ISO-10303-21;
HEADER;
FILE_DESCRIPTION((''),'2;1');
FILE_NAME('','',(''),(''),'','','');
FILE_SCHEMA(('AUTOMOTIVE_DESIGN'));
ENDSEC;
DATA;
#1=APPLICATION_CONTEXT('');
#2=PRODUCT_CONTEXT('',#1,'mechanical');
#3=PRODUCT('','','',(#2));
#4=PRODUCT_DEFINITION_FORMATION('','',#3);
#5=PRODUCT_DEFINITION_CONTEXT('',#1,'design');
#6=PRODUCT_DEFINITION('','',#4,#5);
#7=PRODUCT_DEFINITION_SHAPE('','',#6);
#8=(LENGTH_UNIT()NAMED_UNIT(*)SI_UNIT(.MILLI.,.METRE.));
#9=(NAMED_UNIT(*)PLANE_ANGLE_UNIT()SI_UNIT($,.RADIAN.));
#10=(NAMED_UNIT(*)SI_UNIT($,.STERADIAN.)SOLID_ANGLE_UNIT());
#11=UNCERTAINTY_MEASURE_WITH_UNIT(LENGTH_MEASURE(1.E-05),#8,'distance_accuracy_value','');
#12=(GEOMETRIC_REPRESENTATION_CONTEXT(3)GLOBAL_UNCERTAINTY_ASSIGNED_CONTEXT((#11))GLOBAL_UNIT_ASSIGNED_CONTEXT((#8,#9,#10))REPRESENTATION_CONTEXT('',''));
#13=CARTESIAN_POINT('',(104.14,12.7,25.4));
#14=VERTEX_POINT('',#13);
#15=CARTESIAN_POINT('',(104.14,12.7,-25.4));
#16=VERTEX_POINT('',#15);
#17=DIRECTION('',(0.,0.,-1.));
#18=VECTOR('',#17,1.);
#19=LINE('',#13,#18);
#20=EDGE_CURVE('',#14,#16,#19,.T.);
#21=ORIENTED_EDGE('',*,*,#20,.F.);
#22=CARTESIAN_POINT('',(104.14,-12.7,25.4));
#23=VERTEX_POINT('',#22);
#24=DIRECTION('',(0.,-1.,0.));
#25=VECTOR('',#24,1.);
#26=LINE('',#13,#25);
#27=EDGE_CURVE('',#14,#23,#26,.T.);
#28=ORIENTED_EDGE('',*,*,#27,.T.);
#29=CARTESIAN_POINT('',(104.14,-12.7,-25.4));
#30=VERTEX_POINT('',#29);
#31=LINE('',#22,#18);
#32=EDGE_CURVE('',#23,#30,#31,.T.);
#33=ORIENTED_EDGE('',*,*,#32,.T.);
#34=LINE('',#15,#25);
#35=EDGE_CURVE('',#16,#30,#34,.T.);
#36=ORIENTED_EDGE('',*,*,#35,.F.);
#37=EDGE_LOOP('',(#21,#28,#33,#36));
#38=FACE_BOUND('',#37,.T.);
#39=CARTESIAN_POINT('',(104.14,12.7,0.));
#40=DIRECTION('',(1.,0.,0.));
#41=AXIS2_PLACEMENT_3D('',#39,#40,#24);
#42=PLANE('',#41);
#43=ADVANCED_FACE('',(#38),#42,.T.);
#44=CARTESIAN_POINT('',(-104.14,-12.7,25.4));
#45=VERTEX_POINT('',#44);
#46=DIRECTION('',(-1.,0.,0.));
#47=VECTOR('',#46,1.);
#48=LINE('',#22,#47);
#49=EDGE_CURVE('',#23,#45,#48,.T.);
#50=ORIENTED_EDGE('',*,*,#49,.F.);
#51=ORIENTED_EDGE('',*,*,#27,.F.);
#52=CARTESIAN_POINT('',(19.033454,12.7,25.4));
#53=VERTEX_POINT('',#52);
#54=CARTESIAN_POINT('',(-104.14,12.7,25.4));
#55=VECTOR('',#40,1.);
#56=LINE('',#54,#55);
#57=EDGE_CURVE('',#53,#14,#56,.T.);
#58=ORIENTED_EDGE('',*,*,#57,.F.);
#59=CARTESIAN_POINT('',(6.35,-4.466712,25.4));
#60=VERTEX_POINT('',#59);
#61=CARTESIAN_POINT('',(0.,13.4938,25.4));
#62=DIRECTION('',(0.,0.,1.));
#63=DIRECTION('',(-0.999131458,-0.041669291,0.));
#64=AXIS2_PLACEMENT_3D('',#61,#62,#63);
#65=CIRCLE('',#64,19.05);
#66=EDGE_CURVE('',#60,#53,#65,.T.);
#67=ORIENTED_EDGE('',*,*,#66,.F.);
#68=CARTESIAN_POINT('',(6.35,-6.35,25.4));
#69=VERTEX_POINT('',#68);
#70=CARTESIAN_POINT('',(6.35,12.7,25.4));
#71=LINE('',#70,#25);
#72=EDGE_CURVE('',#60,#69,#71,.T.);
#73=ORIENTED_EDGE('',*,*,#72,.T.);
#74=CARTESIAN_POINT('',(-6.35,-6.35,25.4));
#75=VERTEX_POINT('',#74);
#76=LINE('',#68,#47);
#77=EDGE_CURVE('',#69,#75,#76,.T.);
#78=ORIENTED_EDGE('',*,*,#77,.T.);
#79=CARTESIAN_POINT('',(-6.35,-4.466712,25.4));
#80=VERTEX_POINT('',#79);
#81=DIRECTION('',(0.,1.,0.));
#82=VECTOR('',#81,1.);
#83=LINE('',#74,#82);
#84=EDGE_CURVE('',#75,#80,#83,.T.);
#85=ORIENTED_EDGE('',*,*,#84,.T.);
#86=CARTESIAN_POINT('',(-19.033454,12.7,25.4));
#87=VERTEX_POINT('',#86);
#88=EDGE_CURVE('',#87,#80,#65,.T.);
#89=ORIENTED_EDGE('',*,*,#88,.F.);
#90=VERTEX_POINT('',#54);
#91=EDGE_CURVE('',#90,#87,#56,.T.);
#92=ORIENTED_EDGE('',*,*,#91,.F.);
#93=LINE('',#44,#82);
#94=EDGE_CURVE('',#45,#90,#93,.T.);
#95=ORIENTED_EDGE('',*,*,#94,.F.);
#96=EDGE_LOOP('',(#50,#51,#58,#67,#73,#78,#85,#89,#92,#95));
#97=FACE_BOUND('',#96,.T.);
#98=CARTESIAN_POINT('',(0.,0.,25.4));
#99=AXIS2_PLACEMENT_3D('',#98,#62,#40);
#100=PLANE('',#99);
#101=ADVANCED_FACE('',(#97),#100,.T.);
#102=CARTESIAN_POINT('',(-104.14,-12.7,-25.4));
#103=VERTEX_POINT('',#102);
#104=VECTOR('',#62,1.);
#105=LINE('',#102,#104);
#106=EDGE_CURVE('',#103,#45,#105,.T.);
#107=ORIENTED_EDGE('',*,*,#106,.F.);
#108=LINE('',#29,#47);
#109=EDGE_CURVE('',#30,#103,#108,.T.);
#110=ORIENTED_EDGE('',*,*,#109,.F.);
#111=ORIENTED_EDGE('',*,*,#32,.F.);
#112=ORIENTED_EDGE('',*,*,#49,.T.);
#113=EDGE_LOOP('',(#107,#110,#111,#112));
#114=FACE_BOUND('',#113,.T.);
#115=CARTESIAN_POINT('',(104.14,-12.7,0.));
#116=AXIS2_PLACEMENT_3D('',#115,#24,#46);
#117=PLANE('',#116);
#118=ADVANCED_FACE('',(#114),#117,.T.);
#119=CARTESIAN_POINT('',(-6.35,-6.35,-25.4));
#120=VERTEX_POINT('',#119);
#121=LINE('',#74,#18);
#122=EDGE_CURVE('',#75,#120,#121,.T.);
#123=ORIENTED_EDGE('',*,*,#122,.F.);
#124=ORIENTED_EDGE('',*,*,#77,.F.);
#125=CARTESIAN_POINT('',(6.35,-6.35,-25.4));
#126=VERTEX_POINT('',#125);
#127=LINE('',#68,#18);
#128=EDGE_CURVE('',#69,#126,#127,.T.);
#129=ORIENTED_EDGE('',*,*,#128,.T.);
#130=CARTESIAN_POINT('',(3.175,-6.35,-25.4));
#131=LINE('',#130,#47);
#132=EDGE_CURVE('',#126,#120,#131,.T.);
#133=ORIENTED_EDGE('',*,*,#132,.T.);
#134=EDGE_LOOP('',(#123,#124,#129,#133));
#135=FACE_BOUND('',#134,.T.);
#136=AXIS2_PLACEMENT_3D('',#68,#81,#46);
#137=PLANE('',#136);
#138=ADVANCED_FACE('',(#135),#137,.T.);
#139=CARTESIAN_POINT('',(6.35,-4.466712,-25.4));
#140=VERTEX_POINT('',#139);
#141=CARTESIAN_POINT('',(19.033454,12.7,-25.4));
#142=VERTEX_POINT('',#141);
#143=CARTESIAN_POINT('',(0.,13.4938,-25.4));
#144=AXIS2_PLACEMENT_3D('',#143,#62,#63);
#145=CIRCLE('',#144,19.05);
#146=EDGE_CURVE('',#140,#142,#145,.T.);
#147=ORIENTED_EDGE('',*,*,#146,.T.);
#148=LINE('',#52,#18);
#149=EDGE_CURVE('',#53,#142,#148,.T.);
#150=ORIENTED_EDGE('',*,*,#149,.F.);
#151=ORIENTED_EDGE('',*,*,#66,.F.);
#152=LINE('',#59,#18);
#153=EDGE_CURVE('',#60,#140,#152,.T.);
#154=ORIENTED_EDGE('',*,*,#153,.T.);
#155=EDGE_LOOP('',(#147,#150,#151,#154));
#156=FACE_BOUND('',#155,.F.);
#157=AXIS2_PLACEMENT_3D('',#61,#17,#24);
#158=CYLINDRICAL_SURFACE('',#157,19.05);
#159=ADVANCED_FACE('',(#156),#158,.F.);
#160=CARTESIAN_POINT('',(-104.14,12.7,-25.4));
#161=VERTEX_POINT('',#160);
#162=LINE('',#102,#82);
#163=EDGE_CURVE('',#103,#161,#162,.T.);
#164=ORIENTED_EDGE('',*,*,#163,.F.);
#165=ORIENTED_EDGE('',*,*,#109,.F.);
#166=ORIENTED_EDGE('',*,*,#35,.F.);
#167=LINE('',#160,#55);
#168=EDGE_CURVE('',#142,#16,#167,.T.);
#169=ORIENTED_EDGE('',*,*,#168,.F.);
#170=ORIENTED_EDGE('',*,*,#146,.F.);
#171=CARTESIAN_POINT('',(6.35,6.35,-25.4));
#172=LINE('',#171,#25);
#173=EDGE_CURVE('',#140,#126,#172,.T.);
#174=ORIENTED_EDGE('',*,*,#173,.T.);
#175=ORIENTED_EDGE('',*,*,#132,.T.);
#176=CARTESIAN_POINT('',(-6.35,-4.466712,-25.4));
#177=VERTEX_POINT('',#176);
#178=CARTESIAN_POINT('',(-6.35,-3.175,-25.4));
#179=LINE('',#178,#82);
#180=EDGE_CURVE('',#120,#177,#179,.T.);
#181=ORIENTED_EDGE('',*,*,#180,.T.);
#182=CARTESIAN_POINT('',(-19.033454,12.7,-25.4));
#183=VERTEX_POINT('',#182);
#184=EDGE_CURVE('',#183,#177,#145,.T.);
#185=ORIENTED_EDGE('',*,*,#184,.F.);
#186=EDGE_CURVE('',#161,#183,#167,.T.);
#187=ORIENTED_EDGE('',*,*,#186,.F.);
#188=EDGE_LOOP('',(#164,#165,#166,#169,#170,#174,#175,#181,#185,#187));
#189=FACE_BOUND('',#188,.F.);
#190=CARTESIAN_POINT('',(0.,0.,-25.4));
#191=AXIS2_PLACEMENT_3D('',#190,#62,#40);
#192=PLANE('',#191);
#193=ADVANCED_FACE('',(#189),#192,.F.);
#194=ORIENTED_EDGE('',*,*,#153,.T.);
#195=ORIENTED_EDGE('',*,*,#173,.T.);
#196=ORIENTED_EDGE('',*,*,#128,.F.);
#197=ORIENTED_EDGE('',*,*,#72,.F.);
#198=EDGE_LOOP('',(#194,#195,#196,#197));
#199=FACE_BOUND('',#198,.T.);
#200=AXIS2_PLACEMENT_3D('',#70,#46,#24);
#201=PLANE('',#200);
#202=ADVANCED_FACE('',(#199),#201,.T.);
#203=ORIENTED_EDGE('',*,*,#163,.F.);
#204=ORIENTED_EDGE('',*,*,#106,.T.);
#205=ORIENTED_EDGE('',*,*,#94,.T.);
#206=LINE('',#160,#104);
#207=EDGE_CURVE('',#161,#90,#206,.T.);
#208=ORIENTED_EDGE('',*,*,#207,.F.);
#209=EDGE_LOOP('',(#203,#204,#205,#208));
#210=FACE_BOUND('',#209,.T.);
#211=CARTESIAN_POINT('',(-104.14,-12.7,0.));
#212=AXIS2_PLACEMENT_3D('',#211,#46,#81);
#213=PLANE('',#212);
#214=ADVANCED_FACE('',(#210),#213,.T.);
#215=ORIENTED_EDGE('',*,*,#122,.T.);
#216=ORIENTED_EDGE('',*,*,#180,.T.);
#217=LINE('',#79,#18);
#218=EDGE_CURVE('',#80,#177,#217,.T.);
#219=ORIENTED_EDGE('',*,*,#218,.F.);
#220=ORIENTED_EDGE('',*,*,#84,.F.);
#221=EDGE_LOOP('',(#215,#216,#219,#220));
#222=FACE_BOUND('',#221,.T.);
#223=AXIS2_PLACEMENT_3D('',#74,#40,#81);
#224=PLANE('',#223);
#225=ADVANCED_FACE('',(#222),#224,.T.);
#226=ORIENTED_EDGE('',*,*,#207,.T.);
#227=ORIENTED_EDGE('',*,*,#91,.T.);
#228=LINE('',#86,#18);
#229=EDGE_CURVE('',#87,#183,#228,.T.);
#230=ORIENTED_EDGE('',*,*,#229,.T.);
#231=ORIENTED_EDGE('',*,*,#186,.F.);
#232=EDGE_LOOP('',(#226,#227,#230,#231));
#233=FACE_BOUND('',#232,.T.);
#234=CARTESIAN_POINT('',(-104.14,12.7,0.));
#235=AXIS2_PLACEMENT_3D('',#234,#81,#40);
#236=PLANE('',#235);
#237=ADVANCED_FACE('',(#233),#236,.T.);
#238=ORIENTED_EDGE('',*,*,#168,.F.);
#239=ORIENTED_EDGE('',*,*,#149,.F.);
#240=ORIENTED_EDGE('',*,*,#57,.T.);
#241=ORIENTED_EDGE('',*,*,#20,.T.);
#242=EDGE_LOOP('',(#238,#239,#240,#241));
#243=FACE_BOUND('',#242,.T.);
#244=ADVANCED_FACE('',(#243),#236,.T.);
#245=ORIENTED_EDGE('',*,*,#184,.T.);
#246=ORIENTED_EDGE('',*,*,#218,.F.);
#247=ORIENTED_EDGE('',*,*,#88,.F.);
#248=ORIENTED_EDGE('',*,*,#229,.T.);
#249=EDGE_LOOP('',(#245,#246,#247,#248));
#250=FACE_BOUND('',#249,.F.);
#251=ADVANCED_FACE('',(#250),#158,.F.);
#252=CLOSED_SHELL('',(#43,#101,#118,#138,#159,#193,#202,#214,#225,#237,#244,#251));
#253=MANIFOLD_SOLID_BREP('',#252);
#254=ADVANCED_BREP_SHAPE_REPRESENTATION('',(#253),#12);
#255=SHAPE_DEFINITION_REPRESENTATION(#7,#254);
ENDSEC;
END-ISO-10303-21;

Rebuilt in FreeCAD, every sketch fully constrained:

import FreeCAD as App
import Part
import Sketcher
from FreeCAD import Vector
Q = App.Units.Quantity

doc = App.newDocument("Part")
body = doc.addObject("PartDesign::Body", "Body")

sketch1 = doc.addObject("Sketcher::SketchObject", "Sketch")
body.addObject(sketch1)
sketch1.AttachmentSupport = (doc.XY_Plane, [""])
sketch1.MapMode = "FlatFace"
sketch1.addGeometry(Part.LineSegment(Vector(104.14, 12.7, 0), Vector(-104.14, 12.7, 0)), False)
sketch1.addGeometry(Part.LineSegment(Vector(-104.14, 12.7, 0), Vector(-104.14, -12.7, 0)), False)
sketch1.addGeometry(Part.LineSegment(Vector(-104.14, -12.7, 0), Vector(104.14, -12.7, 0)), False)
sketch1.addGeometry(Part.LineSegment(Vector(104.14, -12.7, 0), Vector(104.14, 12.7, 0)), False)
sketch1.addConstraint(Sketcher.Constraint("Coincident", 0, 2, 1, 1))
sketch1.addConstraint(Sketcher.Constraint("Coincident", 1, 2, 2, 1))
sketch1.addConstraint(Sketcher.Constraint("Coincident", 2, 2, 3, 1))
sketch1.addConstraint(Sketcher.Constraint("Coincident", 3, 2, 0, 1))
sketch1.addConstraint(Sketcher.Constraint("Horizontal", 0))
sketch1.addConstraint(Sketcher.Constraint("Vertical", 1))
sketch1.addConstraint(Sketcher.Constraint("Horizontal", 2))
sketch1.addConstraint(Sketcher.Constraint("Vertical", 3))
sketch1.addConstraint(Sketcher.Constraint("Symmetric", 0, 2, 2, 2, -1, 1))
sketch1.addConstraint(Sketcher.Constraint("DistanceY", 1, 2, 1, 1, Q("1 in")))
sketch1.addConstraint(Sketcher.Constraint("DistanceX", 0, 2, 0, 1, Q("8.2 in")))
pad1 = doc.addObject("PartDesign::Pad", "Pad")
body.addObject(pad1)
pad1.Profile = sketch1
pad1.Length = Q("2 in")
pad1.Midplane = True

sketch2 = doc.addObject("Sketcher::SketchObject", "Sketch001")
body.addObject(sketch2)
sketch2.AttachmentSupport = (doc.XY_Plane, [""])
sketch2.MapMode = "FlatFace"
sketch2.AttachmentOffset = App.Placement(Vector(0, 0, 1 * 25.4), App.Rotation())
sketch2.addGeometry(Part.Circle(Vector(0, 13.4938, 0), Vector(0, 0, 1), 19.05), False)
sketch2.addConstraint(Sketcher.Constraint("PointOnObject", 0, 3, -2))
sketch2.addConstraint(Sketcher.Constraint("Diameter", 0, Q("1.5 in")))
sketch2.addConstraint(Sketcher.Constraint("DistanceY", -1, 1, 0, 3, Q("0.531252 in")))
doc.recompute()
hole = doc.addObject("PartDesign::Hole", "Hole")
body.addObject(hole)
hole.Profile = sketch2
hole.ThreadType = "None"
hole.Diameter = Q("1.5 in")
hole.DepthType = "ThroughAll"

sketch3 = doc.addObject("Sketcher::SketchObject", "Sketch002")
body.addObject(sketch3)
sketch3.AttachmentSupport = (doc.XY_Plane, [""])
sketch3.MapMode = "FlatFace"
sketch3.AttachmentOffset = App.Placement(Vector(0, 0, 1 * 25.4), App.Rotation())
sketch3.addGeometry(Part.LineSegment(Vector(6.35, 12.7, 0), Vector(-6.35, 12.7, 0)), False)
sketch3.addGeometry(Part.LineSegment(Vector(-6.35, 12.7, 0), Vector(-6.35, -6.35, 0)), False)
sketch3.addGeometry(Part.LineSegment(Vector(-6.35, -6.35, 0), Vector(6.35, -6.35, 0)), False)
sketch3.addGeometry(Part.LineSegment(Vector(6.35, -6.35, 0), Vector(6.35, 12.7, 0)), False)
sketch3.addConstraint(Sketcher.Constraint("Coincident", 0, 2, 1, 1))
sketch3.addConstraint(Sketcher.Constraint("Coincident", 1, 2, 2, 1))
sketch3.addConstraint(Sketcher.Constraint("Coincident", 2, 2, 3, 1))
sketch3.addConstraint(Sketcher.Constraint("Coincident", 3, 2, 0, 1))
sketch3.addConstraint(Sketcher.Constraint("Horizontal", 0))
sketch3.addConstraint(Sketcher.Constraint("Vertical", 1))
sketch3.addConstraint(Sketcher.Constraint("Horizontal", 2))
sketch3.addConstraint(Sketcher.Constraint("Vertical", 3))
sketch3.addConstraint(Sketcher.Constraint("DistanceX", 0, 2, 0, 1, Q("0.5 in")))
sketch3.addConstraint(Sketcher.Constraint("DistanceY", 1, 2, 1, 1, Q("0.75 in")))
sketch3.addConstraint(Sketcher.Constraint("DistanceY", -1, 1, 0, 2, Q("0.5 in")))
sketch3.addConstraint(Sketcher.Constraint("DistanceX", 0, 2, -1, 1, Q("0.25 in")))
pocket1 = doc.addObject("PartDesign::Pocket", "Pocket")
body.addObject(pocket1)
pocket1.Profile = sketch3
pocket1.Type = "ThroughAll"

doc.recompute()
